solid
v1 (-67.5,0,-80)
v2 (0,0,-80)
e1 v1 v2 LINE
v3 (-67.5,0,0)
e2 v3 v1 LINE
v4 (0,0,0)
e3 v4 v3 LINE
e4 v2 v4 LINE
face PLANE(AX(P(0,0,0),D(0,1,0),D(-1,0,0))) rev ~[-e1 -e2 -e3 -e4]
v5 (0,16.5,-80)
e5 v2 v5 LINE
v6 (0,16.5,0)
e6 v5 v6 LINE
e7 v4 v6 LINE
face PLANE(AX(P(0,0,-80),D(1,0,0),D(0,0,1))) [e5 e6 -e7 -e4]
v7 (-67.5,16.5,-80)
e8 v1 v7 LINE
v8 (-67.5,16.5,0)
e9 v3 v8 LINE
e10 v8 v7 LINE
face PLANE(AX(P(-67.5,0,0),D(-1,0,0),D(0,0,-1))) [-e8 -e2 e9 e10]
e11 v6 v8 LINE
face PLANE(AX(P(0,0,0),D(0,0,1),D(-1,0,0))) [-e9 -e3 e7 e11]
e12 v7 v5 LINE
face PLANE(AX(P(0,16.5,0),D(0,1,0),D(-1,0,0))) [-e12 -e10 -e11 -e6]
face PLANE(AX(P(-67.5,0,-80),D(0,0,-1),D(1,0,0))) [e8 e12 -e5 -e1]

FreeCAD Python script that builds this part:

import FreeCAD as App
import Part
import Sketcher

V = App.Vector
Q = App.Units.Quantity


def add_polygon(sketch, points):
    """Adds a closed chain of lines whose ends are joined by coincident constraints."""
    first, n = sketch.GeometryCount, len(points)
    for a, b in zip(points, points[1:] + points[:1]):
        sketch.addGeometry(Part.LineSegment(App.Vector(*a, 0), App.Vector(*b, 0)), False)
    for i in range(n):
        sketch.addConstraint(Sketcher.Constraint("Coincident", first + i, 2, first + (i + 1) % n, 1))

doc = App.newDocument("Part")
body = doc.addObject("PartDesign::Body", "Body")

sketch1 = body.newObject("Sketcher::SketchObject", "Sketch")
sketch1.AttachmentSupport = (doc.getObject("XZ_Plane"), [""])
sketch1.MapMode = "FlatFace"
add_polygon(sketch1, [(-68, 0), (0, 0), (0, -80), (-68, -80)])
sketch1.addConstraint([
    Sketcher.Constraint("Horizontal", 0),
    Sketcher.Constraint("Vertical", 1),
    Sketcher.Constraint("Horizontal", 2),
    Sketcher.Constraint("Vertical", 3),
    Sketcher.Constraint("Coincident", 0, 2, -1, 1),
    Sketcher.Constraint("DistanceY", 1, 2, 1, 1, Q("80 mm")),
    Sketcher.Constraint("DistanceX", 0, 1, 0, 2, Q("67.5 mm")),
])
pad1 = body.newObject("PartDesign::Pad", "Pad")
pad1.Profile = sketch1
pad1.Length = 16.5
pad1.Reversed = True

doc.recompute()
